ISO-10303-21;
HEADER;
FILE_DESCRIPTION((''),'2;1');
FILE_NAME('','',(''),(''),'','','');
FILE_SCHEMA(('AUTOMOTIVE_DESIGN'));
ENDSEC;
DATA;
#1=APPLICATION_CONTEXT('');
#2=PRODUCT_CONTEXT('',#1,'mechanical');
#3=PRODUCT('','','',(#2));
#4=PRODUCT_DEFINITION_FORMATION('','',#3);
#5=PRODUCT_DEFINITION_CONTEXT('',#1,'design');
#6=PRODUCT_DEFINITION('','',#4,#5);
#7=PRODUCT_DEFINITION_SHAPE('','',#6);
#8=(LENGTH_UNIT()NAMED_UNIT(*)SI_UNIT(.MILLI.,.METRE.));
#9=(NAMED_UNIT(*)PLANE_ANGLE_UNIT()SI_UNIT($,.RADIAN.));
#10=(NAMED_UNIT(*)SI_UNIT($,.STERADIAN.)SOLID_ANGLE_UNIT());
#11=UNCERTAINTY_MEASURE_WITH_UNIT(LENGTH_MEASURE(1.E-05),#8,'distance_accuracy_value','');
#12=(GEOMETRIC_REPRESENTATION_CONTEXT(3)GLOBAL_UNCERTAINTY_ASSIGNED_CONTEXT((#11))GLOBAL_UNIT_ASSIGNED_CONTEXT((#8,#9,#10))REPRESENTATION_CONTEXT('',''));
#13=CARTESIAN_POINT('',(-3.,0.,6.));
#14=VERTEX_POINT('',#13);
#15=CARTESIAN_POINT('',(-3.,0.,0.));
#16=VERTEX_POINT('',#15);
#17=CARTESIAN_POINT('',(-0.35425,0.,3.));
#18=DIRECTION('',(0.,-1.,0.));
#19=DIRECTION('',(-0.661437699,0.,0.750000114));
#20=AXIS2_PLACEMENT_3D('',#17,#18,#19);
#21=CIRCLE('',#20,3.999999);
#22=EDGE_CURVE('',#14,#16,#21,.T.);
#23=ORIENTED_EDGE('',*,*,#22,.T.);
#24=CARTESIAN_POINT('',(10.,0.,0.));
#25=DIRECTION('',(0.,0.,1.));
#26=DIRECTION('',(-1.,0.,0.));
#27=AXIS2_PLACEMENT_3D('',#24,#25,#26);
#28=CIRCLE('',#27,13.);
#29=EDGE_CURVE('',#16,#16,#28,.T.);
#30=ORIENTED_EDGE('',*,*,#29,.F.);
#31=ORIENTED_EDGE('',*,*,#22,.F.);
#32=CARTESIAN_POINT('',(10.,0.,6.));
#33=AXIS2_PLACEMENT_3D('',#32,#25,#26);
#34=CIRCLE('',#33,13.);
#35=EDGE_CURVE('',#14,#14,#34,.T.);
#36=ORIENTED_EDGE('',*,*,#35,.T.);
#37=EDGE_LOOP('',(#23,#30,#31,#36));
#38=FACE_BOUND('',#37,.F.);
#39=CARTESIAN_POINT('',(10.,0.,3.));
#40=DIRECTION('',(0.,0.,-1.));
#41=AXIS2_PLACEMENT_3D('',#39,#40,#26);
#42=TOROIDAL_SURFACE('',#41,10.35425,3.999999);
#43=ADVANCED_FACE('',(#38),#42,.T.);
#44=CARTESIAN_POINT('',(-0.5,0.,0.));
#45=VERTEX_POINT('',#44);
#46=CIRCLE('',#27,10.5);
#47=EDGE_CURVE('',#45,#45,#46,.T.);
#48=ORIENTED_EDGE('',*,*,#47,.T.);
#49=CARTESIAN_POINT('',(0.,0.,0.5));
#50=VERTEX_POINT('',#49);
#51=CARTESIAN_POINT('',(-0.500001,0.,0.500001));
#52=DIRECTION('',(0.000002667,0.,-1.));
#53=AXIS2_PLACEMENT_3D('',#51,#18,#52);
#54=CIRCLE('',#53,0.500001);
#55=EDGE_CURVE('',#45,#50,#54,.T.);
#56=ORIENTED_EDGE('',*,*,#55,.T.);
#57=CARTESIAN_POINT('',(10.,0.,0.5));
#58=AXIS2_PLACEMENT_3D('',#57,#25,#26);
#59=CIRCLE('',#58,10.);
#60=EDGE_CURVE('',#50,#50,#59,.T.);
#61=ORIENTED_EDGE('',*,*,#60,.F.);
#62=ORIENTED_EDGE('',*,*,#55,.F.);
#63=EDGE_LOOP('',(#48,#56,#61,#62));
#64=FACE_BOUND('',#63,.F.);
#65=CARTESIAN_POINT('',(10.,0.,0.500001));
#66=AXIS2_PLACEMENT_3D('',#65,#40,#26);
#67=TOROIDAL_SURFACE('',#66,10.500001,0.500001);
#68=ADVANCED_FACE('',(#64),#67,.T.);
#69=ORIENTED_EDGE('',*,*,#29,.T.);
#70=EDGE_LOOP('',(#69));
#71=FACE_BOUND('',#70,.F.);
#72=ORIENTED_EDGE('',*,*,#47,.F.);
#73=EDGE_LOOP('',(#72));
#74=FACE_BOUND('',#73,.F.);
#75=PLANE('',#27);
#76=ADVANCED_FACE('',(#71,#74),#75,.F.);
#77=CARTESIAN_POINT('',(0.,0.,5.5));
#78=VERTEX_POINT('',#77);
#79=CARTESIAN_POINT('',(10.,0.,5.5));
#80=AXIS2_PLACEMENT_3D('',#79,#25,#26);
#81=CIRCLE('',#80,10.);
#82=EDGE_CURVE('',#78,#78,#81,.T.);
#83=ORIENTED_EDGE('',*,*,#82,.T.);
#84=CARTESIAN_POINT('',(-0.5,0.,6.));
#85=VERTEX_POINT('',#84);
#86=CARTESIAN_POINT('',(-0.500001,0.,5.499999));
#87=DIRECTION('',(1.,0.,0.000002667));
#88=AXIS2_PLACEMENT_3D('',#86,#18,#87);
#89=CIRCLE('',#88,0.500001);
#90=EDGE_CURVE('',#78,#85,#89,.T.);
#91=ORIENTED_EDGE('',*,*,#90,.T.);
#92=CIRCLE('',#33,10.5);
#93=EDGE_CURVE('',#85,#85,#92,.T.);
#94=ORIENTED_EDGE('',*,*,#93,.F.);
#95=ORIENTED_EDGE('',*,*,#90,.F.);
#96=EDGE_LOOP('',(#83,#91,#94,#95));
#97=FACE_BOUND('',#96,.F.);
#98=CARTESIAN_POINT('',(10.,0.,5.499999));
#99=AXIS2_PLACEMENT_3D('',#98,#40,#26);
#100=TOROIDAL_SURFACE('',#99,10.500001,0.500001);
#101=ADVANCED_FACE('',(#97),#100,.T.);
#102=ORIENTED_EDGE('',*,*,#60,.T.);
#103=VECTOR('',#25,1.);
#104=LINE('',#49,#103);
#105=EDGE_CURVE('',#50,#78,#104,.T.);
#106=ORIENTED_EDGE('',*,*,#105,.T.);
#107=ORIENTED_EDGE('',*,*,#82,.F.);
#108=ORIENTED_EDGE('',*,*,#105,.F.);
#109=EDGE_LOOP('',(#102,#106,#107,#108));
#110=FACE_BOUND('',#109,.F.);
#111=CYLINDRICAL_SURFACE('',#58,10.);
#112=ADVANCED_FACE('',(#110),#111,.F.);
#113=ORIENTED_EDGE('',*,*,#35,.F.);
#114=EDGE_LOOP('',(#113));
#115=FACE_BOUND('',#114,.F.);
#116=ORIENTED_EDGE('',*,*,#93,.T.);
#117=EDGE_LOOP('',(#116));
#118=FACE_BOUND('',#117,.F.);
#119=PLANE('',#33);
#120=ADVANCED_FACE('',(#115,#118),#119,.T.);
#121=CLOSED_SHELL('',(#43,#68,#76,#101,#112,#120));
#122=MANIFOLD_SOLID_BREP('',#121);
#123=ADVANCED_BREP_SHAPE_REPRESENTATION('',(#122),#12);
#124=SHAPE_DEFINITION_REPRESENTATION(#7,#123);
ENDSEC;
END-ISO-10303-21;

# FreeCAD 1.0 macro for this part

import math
import FreeCAD as App
import Part
import Sketcher

V = App.Vector

doc = App.newDocument("Part")
body = doc.addObject("PartDesign::Body", "Body")

sketch1 = body.newObject("Sketcher::SketchObject", "Sketch")
sketch1.AttachmentSupport = (doc.getObject("XZ_Plane"), [""])
sketch1.MapMode = "FlatFace"
sketch1.addGeometry([
    Part.ArcOfCircle(Part.Circle(V(-0.5, 0.5, 0), V(0, 0, 1), 0.5), math.radians(-90), math.radians(0)),
    Part.LineSegment(V(0, 0.5, 0), V(0, 5.5, 0)),
    Part.ArcOfCircle(Part.Circle(V(-0.5, 5.5, 0), V(0, 0, 1), 0.5), math.radians(0), math.radians(90)),
    Part.LineSegment(V(-0.5, 6, 0), V(-3, 6, 0)),
    Part.ArcOfCircle(Part.Circle(V(-0.4, 3, 0), V(0, 0, 1), 4), math.radians(131), math.radians(229)),
    Part.LineSegment(V(-3, 0, 0), V(-0.5, 0, 0)),
], False)
sketch1.addGeometry(Part.LineSegment(V(10, 0, 0), V(10, 6, 0)), True)
sketch1.addConstraint([
    Sketcher.Constraint("Coincident", 0, 2, 1, 1),
    Sketcher.Constraint("Coincident", 1, 2, 2, 1),
    Sketcher.Constraint("Coincident", 2, 2, 3, 1),
    Sketcher.Constraint("Coincident", 3, 2, 4, 1),
    Sketcher.Constraint("Coincident", 4, 2, 5, 1),
    Sketcher.Constraint("Coincident", 5, 2, 0, 1),
    Sketcher.Constraint("Vertical", 1),
    Sketcher.Constraint("Horizontal", 3),
    Sketcher.Constraint("Horizontal", 5),
    Sketcher.Constraint("Vertical", 6),
    Sketcher.Constraint("Equal", 0, 2),
    Sketcher.Constraint("PointOnObject", 0, 2, -2),
    Sketcher.Constraint("PointOnObject", 4, 2, -1),
    Sketcher.Constraint("PointOnObject", 6, 1, -1),
    Sketcher.Constraint("Horizontal", 2, 3, 1, 2),
    Sketcher.Constraint("Horizontal", 3, 2, 6, 2),
    Sketcher.Constraint("Vertical", 0, 3, 2, 2),
    Sketcher.Constraint("Vertical", 3, 2, 4, 2),
    Sketcher.Constraint("Vertical", 2, 2, 5, 2),
    Sketcher.Constraint("Radius", 4, 3.999999),
    Sketcher.Constraint("Radius", 0, 0.500001),
    Sketcher.Constraint("DistanceY", 1, 1, 1, 2, 5.0),
    Sketcher.Constraint("DistanceY", 6, 1, 6, 2, 6.0),
    Sketcher.Constraint("DistanceX", 3, 2, 3, 1, 2.5),
    Sketcher.Constraint("DistanceX", -1, 1, 6, 1, 10.0),
])
revolution = body.newObject("PartDesign::Revolution", "Revolution")
revolution.Profile = sketch1
revolution.ReferenceAxis = (sketch1, ["Axis0"])
revolution.Angle = 360

doc.recompute()
